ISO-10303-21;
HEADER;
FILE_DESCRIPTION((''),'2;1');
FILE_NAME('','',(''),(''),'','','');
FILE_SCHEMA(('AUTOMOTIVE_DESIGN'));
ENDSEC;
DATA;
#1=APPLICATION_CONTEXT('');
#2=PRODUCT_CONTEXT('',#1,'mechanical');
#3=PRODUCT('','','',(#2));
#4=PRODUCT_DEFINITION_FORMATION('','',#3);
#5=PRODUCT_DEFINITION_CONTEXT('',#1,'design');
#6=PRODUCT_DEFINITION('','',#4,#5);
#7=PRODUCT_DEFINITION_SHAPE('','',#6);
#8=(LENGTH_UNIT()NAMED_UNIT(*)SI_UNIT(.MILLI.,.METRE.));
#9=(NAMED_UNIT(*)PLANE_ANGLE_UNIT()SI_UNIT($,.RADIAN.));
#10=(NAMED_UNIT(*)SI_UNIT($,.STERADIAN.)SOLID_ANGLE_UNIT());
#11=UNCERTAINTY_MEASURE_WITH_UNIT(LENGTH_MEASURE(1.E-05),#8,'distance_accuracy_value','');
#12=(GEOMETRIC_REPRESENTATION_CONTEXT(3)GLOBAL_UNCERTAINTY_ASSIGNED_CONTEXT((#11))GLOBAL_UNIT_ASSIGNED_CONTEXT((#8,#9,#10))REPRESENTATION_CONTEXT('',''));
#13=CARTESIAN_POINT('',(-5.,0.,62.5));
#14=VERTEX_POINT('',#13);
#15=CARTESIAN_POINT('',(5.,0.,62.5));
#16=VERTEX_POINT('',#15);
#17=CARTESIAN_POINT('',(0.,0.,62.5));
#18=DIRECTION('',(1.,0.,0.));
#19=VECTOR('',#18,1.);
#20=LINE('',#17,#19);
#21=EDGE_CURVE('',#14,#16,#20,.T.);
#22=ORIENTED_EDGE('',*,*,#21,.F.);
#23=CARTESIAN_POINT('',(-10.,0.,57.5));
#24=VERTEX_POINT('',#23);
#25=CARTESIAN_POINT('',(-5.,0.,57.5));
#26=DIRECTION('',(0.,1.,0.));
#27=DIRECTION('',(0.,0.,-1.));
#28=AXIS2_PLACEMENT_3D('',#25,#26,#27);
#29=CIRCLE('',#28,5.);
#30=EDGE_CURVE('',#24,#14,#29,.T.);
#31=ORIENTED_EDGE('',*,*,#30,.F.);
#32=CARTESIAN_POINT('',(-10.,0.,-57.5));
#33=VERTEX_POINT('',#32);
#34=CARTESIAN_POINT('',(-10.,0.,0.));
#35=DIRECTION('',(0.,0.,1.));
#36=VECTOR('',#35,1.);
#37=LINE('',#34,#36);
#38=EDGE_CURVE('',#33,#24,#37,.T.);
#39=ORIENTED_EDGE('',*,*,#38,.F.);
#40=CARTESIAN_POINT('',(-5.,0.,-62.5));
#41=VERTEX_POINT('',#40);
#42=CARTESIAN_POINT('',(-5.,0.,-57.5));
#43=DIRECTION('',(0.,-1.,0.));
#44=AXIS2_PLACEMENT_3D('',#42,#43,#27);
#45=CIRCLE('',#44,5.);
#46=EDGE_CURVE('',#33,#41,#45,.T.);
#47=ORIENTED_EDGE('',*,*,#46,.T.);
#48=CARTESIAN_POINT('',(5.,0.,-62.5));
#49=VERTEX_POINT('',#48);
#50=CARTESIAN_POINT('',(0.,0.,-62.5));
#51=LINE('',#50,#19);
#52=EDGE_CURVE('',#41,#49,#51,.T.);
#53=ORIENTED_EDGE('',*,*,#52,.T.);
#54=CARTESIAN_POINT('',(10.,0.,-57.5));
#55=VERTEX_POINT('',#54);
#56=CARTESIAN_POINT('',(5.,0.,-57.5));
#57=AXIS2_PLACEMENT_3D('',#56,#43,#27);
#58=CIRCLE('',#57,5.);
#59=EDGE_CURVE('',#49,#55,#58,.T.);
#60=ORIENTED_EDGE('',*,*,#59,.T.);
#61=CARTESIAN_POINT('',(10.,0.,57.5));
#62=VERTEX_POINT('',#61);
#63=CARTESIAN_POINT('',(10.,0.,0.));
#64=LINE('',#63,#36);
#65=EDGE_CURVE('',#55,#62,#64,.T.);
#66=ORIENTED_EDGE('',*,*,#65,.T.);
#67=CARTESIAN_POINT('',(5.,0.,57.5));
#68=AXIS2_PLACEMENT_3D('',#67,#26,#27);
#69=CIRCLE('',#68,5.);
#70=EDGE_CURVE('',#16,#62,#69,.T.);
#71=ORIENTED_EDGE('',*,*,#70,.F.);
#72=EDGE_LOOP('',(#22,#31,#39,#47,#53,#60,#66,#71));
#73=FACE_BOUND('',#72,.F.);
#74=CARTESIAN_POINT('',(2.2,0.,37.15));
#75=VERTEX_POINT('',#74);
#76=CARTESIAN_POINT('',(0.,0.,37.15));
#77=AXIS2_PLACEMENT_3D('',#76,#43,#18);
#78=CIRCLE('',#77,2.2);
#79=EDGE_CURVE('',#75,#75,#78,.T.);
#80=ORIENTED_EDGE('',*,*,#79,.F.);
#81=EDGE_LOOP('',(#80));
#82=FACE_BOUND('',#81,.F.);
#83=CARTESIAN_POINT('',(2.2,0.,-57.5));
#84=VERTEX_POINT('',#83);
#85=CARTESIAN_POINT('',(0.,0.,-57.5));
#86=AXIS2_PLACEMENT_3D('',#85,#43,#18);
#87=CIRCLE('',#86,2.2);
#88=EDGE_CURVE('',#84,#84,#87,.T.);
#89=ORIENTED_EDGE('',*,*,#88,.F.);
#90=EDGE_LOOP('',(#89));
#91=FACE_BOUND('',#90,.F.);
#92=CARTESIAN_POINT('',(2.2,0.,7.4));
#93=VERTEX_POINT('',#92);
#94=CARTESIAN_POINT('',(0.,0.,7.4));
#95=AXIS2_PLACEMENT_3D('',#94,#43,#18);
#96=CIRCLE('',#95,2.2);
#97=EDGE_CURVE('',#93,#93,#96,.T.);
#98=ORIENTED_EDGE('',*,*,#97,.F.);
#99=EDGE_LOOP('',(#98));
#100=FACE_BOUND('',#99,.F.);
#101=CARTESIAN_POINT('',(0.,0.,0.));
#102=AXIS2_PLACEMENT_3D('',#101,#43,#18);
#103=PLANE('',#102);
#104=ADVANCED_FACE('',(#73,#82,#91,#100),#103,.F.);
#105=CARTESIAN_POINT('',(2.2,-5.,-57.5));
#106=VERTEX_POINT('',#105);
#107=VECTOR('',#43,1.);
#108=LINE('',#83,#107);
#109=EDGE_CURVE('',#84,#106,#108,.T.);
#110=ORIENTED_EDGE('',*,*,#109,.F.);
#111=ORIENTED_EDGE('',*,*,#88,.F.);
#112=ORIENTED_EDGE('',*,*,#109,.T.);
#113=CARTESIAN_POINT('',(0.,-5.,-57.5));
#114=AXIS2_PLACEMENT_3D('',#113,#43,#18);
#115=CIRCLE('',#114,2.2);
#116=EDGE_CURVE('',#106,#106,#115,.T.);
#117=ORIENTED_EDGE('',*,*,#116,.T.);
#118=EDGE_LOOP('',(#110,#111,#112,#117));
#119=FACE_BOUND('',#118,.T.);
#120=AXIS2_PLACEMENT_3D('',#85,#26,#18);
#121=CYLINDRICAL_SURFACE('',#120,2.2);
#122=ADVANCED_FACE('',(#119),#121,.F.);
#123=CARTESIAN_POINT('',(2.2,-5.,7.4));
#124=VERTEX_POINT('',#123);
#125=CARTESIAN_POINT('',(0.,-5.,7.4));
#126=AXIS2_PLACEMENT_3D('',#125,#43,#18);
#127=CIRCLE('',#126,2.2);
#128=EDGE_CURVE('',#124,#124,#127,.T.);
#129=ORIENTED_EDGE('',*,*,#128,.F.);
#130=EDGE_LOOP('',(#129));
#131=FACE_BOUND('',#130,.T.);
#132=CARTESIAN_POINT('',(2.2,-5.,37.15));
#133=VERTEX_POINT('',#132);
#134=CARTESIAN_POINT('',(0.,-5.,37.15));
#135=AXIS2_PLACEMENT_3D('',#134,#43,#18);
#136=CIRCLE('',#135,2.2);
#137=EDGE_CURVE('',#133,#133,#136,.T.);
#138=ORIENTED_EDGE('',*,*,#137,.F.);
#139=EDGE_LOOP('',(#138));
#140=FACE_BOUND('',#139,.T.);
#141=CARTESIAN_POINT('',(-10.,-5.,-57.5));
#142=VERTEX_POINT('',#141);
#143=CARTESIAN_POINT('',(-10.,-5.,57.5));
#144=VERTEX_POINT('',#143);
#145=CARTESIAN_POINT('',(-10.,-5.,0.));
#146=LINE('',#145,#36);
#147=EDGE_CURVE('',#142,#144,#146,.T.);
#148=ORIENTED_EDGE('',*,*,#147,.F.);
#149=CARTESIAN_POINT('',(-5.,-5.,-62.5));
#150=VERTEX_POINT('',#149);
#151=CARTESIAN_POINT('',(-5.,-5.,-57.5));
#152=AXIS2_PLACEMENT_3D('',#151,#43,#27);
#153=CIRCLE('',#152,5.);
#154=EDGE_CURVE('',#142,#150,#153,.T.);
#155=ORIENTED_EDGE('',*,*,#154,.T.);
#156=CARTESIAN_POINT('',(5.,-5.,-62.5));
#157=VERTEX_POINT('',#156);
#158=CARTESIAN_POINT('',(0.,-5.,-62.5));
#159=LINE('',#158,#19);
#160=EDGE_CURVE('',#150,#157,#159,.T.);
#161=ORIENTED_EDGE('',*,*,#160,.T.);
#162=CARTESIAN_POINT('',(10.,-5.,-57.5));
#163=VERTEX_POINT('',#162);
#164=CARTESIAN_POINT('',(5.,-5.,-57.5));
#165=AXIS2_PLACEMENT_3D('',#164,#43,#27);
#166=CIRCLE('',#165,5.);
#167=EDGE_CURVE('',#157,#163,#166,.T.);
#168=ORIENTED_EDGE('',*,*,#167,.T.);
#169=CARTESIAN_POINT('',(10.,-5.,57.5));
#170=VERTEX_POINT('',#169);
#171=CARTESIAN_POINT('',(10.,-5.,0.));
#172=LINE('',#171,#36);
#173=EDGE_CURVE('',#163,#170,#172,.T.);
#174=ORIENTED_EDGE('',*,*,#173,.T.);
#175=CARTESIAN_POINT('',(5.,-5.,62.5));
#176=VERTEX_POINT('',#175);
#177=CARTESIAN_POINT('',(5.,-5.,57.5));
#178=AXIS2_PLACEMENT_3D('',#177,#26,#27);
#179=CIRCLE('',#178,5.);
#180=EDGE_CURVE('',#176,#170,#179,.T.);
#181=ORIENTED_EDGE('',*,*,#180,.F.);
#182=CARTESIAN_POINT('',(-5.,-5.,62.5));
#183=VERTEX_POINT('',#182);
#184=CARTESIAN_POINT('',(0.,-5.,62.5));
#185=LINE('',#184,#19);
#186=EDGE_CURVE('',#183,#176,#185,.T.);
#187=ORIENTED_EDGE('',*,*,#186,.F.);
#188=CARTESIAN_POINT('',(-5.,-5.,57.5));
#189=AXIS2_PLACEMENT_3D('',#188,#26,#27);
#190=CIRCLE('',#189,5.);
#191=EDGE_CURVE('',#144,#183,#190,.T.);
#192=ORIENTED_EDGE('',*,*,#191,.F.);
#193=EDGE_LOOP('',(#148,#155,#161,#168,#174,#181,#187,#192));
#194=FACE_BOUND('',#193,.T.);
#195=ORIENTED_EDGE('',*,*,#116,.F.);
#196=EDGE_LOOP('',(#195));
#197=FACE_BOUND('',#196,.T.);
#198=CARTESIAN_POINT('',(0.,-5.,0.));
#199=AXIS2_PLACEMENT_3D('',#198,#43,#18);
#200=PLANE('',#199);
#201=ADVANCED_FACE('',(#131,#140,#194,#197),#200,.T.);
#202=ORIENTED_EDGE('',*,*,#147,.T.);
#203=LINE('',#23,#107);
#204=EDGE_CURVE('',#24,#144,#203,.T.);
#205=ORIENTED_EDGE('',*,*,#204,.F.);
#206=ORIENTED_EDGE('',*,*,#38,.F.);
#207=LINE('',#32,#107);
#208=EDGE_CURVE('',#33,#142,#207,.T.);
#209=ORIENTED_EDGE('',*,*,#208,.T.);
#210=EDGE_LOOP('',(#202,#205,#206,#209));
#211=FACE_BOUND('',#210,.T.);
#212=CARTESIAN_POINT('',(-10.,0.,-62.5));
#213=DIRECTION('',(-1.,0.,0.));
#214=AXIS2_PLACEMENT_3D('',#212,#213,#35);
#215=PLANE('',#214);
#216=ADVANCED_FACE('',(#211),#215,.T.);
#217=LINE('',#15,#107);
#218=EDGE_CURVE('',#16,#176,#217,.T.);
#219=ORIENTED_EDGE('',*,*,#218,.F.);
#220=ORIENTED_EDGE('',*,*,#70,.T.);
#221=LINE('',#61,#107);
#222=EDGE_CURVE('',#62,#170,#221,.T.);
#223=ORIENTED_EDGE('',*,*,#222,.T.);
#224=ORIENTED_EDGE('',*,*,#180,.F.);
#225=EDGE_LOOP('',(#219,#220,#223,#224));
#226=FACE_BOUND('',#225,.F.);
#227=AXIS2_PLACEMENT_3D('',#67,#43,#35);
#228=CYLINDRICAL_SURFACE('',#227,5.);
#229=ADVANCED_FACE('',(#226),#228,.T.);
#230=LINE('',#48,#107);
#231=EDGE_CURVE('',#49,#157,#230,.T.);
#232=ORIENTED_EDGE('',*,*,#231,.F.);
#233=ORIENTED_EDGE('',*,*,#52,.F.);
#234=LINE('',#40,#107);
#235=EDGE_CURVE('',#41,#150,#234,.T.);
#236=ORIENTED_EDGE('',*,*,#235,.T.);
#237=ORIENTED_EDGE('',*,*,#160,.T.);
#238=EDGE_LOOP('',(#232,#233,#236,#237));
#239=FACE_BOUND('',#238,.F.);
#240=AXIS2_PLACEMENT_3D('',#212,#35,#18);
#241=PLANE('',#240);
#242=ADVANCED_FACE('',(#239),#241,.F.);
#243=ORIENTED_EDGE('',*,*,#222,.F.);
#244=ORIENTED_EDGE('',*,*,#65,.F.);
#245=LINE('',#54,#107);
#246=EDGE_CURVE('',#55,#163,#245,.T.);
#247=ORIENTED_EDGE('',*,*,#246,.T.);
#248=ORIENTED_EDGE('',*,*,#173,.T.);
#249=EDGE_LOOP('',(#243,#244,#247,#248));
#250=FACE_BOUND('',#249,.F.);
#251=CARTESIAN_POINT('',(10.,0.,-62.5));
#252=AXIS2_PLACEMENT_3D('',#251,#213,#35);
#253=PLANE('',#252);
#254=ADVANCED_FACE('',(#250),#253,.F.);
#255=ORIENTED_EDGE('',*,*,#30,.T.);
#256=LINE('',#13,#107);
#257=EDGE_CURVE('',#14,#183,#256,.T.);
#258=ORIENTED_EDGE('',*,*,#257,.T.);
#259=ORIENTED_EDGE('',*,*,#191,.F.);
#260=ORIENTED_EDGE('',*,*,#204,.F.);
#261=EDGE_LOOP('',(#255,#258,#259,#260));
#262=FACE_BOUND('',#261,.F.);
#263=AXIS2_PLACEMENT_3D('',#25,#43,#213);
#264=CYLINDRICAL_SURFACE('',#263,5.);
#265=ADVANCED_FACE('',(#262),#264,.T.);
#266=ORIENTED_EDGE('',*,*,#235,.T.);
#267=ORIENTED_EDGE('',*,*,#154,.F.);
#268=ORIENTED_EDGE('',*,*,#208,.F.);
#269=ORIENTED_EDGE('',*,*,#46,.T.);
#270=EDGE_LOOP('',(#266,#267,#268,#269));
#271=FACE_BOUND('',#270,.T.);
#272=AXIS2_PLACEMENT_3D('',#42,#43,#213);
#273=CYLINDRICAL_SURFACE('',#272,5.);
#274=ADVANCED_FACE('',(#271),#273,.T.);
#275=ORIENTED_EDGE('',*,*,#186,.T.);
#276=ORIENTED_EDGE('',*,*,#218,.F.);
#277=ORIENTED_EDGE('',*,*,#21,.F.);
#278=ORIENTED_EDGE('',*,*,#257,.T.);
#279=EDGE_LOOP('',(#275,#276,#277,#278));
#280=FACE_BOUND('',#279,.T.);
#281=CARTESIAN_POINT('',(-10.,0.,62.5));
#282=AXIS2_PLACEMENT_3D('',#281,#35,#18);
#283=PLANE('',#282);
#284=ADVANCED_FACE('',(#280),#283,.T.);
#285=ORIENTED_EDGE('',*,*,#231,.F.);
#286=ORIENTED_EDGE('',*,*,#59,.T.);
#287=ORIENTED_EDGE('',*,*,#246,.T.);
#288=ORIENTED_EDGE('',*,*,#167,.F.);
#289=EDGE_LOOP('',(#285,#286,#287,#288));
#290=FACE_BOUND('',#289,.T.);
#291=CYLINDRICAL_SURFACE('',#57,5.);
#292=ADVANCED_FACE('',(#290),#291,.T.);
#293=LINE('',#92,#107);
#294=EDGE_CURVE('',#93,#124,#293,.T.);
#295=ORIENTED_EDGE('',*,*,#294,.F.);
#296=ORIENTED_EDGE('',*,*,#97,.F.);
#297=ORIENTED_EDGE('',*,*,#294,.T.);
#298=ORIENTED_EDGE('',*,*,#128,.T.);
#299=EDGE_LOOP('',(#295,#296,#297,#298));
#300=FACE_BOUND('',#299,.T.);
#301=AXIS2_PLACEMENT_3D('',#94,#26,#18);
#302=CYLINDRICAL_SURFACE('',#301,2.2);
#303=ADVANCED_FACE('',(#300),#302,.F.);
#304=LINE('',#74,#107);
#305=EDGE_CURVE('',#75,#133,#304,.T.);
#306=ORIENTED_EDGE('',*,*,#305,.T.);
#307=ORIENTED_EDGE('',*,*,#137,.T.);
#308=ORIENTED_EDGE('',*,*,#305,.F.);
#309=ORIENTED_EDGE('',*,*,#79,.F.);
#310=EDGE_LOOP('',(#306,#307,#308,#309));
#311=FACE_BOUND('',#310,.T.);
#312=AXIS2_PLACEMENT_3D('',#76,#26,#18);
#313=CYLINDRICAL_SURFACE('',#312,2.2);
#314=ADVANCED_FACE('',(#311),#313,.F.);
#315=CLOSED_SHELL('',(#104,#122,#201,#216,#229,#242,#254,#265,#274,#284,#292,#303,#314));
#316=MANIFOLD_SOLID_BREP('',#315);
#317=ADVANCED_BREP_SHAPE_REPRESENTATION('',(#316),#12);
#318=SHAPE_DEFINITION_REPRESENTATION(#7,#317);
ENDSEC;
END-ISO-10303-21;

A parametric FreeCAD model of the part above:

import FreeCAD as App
import Part
import Sketcher
from FreeCAD import Vector


def edges_at(feature, points):
    """Names of the edges that pass closest to the given points."""
    edges = feature.Shape.Edges
    near = lambda p: min(range(len(edges)), key=lambda i: edges[i].distToShape(Part.Vertex(*p))[0])
    return sorted({f"Edge{near(p) + 1}" for p in points})

doc = App.newDocument("Part")
params = doc.addObject("Spreadsheet::Sheet", "Params")
for row, (alias, value) in enumerate([
    ("sketch1_diameter", "4.4 mm"),
    ("sketch1_width", "20 mm"),
    ("sketch1_height", "125 mm"),
    ("pad1_length", "5 mm"),
    ("fillet_radius", "5 mm"),
], start=1):
    params.set(f"A{row}", alias)
    params.set(f"B{row}", "=" + value)
    params.setAlias(f"B{row}", alias)

body = doc.addObject("PartDesign::Body", "Body")

# Sketch on XZ plane
sketch1 = body.newObject("Sketcher::SketchObject", "Sketch")
sketch1.AttachmentSupport = (doc.getObject("XZ_Plane"), [""])
sketch1.MapMode = "FlatFace"
sketch1.addGeometry(Part.LineSegment(Vector(-10, 62.5, 0), Vector(-10, -62.5, 0)), False)
sketch1.addGeometry(Part.LineSegment(Vector(-10, -62.5, 0), Vector(10, -62.5, 0)), False)
sketch1.addGeometry(Part.LineSegment(Vector(10, -62.5, 0), Vector(10, 62.5, 0)), False)
sketch1.addGeometry(Part.LineSegment(Vector(10, 62.5, 0), Vector(-10, 62.5, 0)), False)
sketch1.addGeometry(Part.Circle(Vector(0, -57.5, 0), Vector(0, 0, 1), 2.2), False)
sketch1.addGeometry(Part.Circle(Vector(0, 7.4, 0), Vector(0, 0, 1), 2.2), False)
sketch1.addGeometry(Part.Circle(Vector(0, 37.15, 0), Vector(0, 0, 1), 2.2), False)
sketch1.addConstraint(Sketcher.Constraint("Coincident", 0, 2, 1, 1))
sketch1.addConstraint(Sketcher.Constraint("Coincident", 1, 2, 2, 1))
sketch1.addConstraint(Sketcher.Constraint("Coincident", 2, 2, 3, 1))
sketch1.addConstraint(Sketcher.Constraint("Coincident", 3, 2, 0, 1))
sketch1.addConstraint(Sketcher.Constraint("Vertical", 0))
sketch1.addConstraint(Sketcher.Constraint("Horizontal", 1))
sketch1.addConstraint(Sketcher.Constraint("Vertical", 2))
sketch1.addConstraint(Sketcher.Constraint("Horizontal", 3))
sketch1.addConstraint(Sketcher.Constraint("Equal", 4, 5))
sketch1.addConstraint(Sketcher.Constraint("Equal", 5, 6))
sketch1.addConstraint(Sketcher.Constraint("Symmetric", 0, 2, 2, 2, -1, 1))
sketch1.addConstraint(Sketcher.Constraint("PointOnObject", 4, 3, -2))
sketch1.addConstraint(Sketcher.Constraint("PointOnObject", 5, 3, -2))
sketch1.addConstraint(Sketcher.Constraint("PointOnObject", 6, 3, -2))
sketch1.addConstraint(Sketcher.Constraint("Diameter", 4, 4.4))
sketch1.addConstraint(Sketcher.Constraint("DistanceX", 1, 1, 1, 2, 20.0))
sketch1.addConstraint(Sketcher.Constraint("DistanceY", 0, 2, 0, 1, 125.0))
sketch1.addConstraint(Sketcher.Constraint("DistanceY", 0, 2, 4, 3, 5.0))
sketch1.addConstraint(Sketcher.Constraint("DistanceY", -1, 1, 5, 3, 7.4))
sketch1.addConstraint(Sketcher.Constraint("DistanceY", -1, 1, 6, 3, 37.15))
sketch1.setExpression("Constraints[14]", "Params.sketch1_diameter")
sketch1.setExpression("Constraints[15]", "Params.sketch1_width")
sketch1.setExpression("Constraints[16]", "Params.sketch1_height")
pad1 = body.newObject("PartDesign::Pad", "Pad")
pad1.Profile = sketch1
pad1.setExpression("Length", "Params.pad1_length")
doc.recompute()

fillet = body.newObject("PartDesign::Fillet", "Fillet")
fillet.Base = (pad1, edges_at(pad1, [
    (-10, -2.5, 62.5),
    (10, -2.5, 62.5),
    (-10, -2.5, -62.5),
    (10, -2.5, -62.5),
]))
fillet.setExpression("Radius", "Params.fillet_radius")

doc.recompute()
